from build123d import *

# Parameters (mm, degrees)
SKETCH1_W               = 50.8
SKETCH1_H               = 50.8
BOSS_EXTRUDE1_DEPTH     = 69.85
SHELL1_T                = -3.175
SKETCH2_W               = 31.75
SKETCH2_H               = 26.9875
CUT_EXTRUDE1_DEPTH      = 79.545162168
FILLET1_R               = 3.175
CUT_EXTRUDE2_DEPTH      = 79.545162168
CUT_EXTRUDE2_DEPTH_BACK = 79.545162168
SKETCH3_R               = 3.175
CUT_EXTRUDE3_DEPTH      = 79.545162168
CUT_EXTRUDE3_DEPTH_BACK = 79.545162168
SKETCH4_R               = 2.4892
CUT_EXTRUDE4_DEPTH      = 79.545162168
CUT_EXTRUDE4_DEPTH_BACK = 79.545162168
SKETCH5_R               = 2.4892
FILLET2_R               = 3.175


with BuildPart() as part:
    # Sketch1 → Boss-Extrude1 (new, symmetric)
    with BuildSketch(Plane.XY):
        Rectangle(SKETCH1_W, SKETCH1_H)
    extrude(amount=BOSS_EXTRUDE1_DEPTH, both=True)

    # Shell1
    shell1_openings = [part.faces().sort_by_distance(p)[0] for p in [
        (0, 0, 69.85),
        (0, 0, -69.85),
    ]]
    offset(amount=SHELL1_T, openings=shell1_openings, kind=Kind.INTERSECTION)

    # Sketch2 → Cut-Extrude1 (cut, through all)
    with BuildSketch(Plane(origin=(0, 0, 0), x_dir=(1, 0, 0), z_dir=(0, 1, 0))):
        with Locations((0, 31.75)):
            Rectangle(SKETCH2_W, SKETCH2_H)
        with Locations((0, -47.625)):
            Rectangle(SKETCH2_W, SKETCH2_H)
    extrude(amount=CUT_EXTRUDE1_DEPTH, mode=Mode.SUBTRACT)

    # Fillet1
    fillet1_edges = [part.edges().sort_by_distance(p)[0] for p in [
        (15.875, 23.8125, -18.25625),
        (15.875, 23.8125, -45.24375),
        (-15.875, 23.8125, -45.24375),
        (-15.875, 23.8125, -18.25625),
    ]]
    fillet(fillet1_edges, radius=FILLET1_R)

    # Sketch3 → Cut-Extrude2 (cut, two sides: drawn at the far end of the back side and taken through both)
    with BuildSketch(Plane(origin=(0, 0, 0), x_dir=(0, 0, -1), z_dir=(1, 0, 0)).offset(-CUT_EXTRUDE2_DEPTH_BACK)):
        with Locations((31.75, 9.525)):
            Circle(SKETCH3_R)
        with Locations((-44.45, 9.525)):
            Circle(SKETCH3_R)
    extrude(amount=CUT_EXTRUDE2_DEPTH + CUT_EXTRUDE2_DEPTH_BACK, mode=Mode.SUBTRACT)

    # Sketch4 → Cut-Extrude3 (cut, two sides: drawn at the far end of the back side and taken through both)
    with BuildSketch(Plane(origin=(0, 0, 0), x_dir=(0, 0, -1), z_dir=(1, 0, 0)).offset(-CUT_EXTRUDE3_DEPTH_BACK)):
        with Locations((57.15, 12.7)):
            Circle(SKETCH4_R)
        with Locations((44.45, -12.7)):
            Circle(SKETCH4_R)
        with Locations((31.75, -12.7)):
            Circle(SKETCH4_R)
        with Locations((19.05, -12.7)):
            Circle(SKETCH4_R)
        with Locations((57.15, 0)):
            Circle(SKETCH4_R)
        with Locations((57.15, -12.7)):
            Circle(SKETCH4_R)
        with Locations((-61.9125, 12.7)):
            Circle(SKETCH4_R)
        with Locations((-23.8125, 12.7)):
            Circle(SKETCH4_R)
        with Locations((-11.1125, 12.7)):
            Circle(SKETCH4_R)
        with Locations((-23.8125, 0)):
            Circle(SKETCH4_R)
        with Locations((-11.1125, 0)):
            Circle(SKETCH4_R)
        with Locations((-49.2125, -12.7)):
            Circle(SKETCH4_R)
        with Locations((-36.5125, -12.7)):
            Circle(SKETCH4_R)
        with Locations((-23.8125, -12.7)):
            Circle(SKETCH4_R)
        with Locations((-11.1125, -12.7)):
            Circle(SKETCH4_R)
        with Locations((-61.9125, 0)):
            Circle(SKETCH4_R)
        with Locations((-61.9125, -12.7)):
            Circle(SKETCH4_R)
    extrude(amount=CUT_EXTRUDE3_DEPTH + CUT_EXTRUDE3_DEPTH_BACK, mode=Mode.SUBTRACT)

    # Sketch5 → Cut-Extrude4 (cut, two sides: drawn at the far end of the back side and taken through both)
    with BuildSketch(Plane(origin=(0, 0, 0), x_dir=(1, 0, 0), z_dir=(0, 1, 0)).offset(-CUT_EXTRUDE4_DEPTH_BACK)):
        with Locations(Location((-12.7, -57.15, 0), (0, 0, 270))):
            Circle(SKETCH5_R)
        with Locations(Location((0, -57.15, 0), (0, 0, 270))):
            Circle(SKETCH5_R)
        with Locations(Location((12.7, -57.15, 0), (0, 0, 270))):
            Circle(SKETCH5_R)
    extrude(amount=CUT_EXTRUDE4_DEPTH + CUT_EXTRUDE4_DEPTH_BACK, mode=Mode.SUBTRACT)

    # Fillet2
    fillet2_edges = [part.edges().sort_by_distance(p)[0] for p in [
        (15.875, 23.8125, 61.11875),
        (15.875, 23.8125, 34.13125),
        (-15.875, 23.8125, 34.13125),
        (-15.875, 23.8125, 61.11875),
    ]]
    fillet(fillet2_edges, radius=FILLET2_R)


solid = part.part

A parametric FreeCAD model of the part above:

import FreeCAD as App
import Part
import Sketcher
from FreeCAD import Vector
Q = App.Units.Quantity


def edges_at(feature, points):
    """Names of the edges that pass closest to the given points."""
    edges = feature.Shape.Edges
    near = lambda p: min(range(len(edges)), key=lambda i: edges[i].distToShape(Part.Vertex(*p))[0])
    return sorted({f"Edge{near(p) + 1}" for p in points})


def faces_at(feature, points):
    """Names of the faces that lie closest to the given points."""
    faces = feature.Shape.Faces
    near = lambda p: min(range(len(faces)), key=lambda i: faces[i].distToShape(Part.Vertex(*p))[0])
    return sorted({f"Face{near(p) + 1}" for p in points})


def add_polygon(sketch, points):
    """Adds a closed chain of lines whose ends are joined by coincident constraints."""
    first, n = sketch.GeometryCount, len(points)
    for a, b in zip(points, points[1:] + points[:1]):
        sketch.addGeometry(Part.LineSegment(App.Vector(*a, 0), App.Vector(*b, 0)), False)
    for i in range(n):
        sketch.addConstraint(Sketcher.Constraint("Coincident", first + i, 2, first + (i + 1) % n, 1))

doc = App.newDocument("Part")
body = doc.addObject("PartDesign::Body", "Body")

sketch1 = doc.addObject("Sketcher::SketchObject", "Sketch")
body.addObject(sketch1)
sketch1.AttachmentSupport = (doc.XY_Plane, [""])
sketch1.MapMode = "FlatFace"
add_polygon(sketch1, [(-25, 25), (-25, -25), (25, -25), (25, 25)])
sketch1.addConstraint([
    Sketcher.Constraint("Vertical", 0),
    Sketcher.Constraint("Horizontal", 1),
    Sketcher.Constraint("Vertical", 2),
    Sketcher.Constraint("Horizontal", 3),
    Sketcher.Constraint("Symmetric", 0, 2, 2, 2, -1, 1),
    Sketcher.Constraint("Equal", 3, 0),
    Sketcher.Constraint("DistanceX", 1, 1, 1, 2, Q("2 in")),
])
pad1 = doc.addObject("PartDesign::Pad", "Pad")
body.addObject(pad1)
pad1.Profile = sketch1
pad1.Length = Q("5.5 in")
pad1.Midplane = True
doc.recompute()

thickness = doc.addObject("PartDesign::Thickness", "Thickness")
body.addObject(thickness)
thickness.Base = (pad1, faces_at(pad1, [(0, 0, 69.85), (0, 0, -69.85)]))
thickness.Value = Q("0.125 in")
thickness.Reversed = True
thickness.Join = "Intersection"

sketch2 = doc.addObject("Sketcher::SketchObject", "Sketch001")
body.addObject(sketch2)
sketch2.AttachmentSupport = (doc.XZ_Plane, [""])
sketch2.MapMode = "FlatFace"
add_polygon(sketch2, [(-16, -45), (-16, -18), (16, -18), (16, -45)])
add_polygon(sketch2, [(-16, 34), (-16, 61), (16, 61), (16, 34)])
sketch2.addConstraint([
    Sketcher.Constraint("Vertical", 0),
    Sketcher.Constraint("Horizontal", 1),
    Sketcher.Constraint("Vertical", 2),
    Sketcher.Constraint("Horizontal", 3),
    Sketcher.Constraint("Vertical", 4),
    Sketcher.Constraint("Horizontal", 5),
    Sketcher.Constraint("Vertical", 6),
    Sketcher.Constraint("Horizontal", 7),
    Sketcher.Constraint("Vertical", 3, 2, 4, 2),
    Sketcher.Constraint("Vertical", 2, 2, 5, 2),
    Sketcher.Constraint("Equal", 2, 4),
    Sketcher.Constraint("DistanceX", 1, 1, 1, 2, Q("1.25 in")),
    Sketcher.Constraint("DistanceY", 0, 1, 0, 2, Q("1.0625 in")),
    Sketcher.Constraint("DistanceX", 0, 2, -1, 1, Q("0.625 in")),
    Sketcher.Constraint("DistanceY", 0, 2, -1, 1, Q("0.71875 in")),
    Sketcher.Constraint("DistanceY", -1, 1, 4, 2, Q("2.40625 in")),
])
pocket1 = doc.addObject("PartDesign::Pocket", "Pocket")
body.addObject(pocket1)
pocket1.Profile = sketch2
pocket1.Type = "ThroughAll"
doc.recompute()

fillet = doc.addObject("PartDesign::Fillet", "Fillet")
body.addObject(fillet)
fillet.Base = (pocket1, edges_at(pocket1, [
    (15.875, 23.812, -18.256),
    (15.875, 23.812, -45.244),
    (-15.875, 23.812, -45.244),
    (-15.875, 23.812, -18.256),
]))
fillet.Radius = Q("0.125 in")

sketch3 = doc.addObject("Sketcher::SketchObject", "Sketch002")
body.addObject(sketch3)
sketch3.AttachmentSupport = (doc.YZ_Plane, [""])
sketch3.MapMode = "FlatFace"
sketch3.addGeometry([
    Part.Circle(Vector(9.5, -31.8, 0), Vector(0, 0, 1), 3.2),
    Part.Circle(Vector(9.5, 44.5, 0), Vector(0, 0, 1), 3.2),
], False)
sketch3.addConstraint([
    Sketcher.Constraint("Equal", 0, 1),
    Sketcher.Constraint("Vertical", 0, 3, 1, 3),
    Sketcher.Constraint("Diameter", 0, Q("0.25 in")),
    Sketcher.Constraint("DistanceY", 0, 3, 1, 3, Q("3 in")),
    Sketcher.Constraint("DistanceY", 0, 3, -1, 1, Q("1.25 in")),
    Sketcher.Constraint("DistanceX", -1, 1, 0, 3, Q("0.375 in")),
])
pocket2 = doc.addObject("PartDesign::Pocket", "Pocket001")
body.addObject(pocket2)
pocket2.Profile = sketch3
pocket2.Type = "ThroughAll"
pocket2.Midplane = True

sketch4 = doc.addObject("Sketcher::SketchObject", "Sketch003")
body.addObject(sketch4)
sketch4.AttachmentSupport = (doc.YZ_Plane, [""])
sketch4.MapMode = "FlatFace"
sketch4.addGeometry([
    Part.Circle(Vector(12.7, -57.1, 0), Vector(0, 0, 1), 2.5),
    Part.Circle(Vector(-12.7, -44.5, 0), Vector(0, 0, 1), 2.5),
    Part.Circle(Vector(-12.7, -31.8, 0), Vector(0, 0, 1), 2.5),
    Part.Circle(Vector(-12.7, -19.1, 0), Vector(0, 0, 1), 2.5),
    Part.Circle(Vector(0, -57.1, 0), Vector(0, 0, 1), 2.5),
    Part.Circle(Vector(-12.7, -57.1, 0), Vector(0, 0, 1), 2.5),
    Part.Circle(Vector(12.7, 61.9, 0), Vector(0, 0, 1), 2.5),
    Part.Circle(Vector(12.7, 23.8, 0), Vector(0, 0, 1), 2.5),
    Part.Circle(Vector(12.7, 11.1, 0), Vector(0, 0, 1), 2.5),
    Part.Circle(Vector(0, 23.8, 0), Vector(0, 0, 1), 2.5),
    Part.Circle(Vector(0, 11.1, 0), Vector(0, 0, 1), 2.5),
    Part.Circle(Vector(-12.7, 49.2, 0), Vector(0, 0, 1), 2.5),
    Part.Circle(Vector(-12.7, 36.5, 0), Vector(0, 0, 1), 2.5),
    Part.Circle(Vector(-12.7, 23.8, 0), Vector(0, 0, 1), 2.5),
    Part.Circle(Vector(-12.7, 11.1, 0), Vector(0, 0, 1), 2.5),
    Part.Circle(Vector(0, 61.9, 0), Vector(0, 0, 1), 2.5),
    Part.Circle(Vector(-12.7, 61.9, 0), Vector(0, 0, 1), 2.5),
], False)
sketch4.addConstraint([
    Sketcher.Constraint("Equal", 0, 1),
    Sketcher.Constraint("Equal", 1, 2),
    Sketcher.Constraint("Equal", 2, 3),
    Sketcher.Constraint("Equal", 3, 4),
    Sketcher.Constraint("Equal", 4, 5),
    Sketcher.Constraint("Equal", 5, 6),
    Sketcher.Constraint("Equal", 6, 7),
    Sketcher.Constraint("Equal", 7, 8),
    Sketcher.Constraint("Equal", 8, 9),
    Sketcher.Constraint("Equal", 9, 10),
    Sketcher.Constraint("Equal", 10, 11),
    Sketcher.Constraint("Equal", 11, 12),
    Sketcher.Constraint("Equal", 12, 13),
    Sketcher.Constraint("Equal", 13, 14),
    Sketcher.Constraint("Equal", 14, 15),
    Sketcher.Constraint("Equal", 15, 16),
    Sketcher.Constraint("Symmetric", 0, 3, 5, 3, -2),
    Sketcher.Constraint("Symmetric", 7, 3, 13, 3, -2),
    Sketcher.Constraint("Symmetric", 8, 3, 14, 3, -2),
    Sketcher.Constraint("Symmetric", 6, 3, 16, 3, -2),
    Sketcher.Constraint("PointOnObject", 4, 3, -2),
    Sketcher.Constraint("PointOnObject", 9, 3, -2),
    Sketcher.Constraint("PointOnObject", 10, 3, -2),
    Sketcher.Constraint("PointOnObject", 15, 3, -2),
    Sketcher.Constraint("Horizontal", 0, 3, 4, 3),
    Sketcher.Constraint("Horizontal", 7, 3, 9, 3),
    Sketcher.Constraint("Horizontal", 8, 3, 10, 3),
    Sketcher.Constraint("Horizontal", 6, 3, 15, 3),
    Sketcher.Constraint("Vertical", 1, 3, 2, 3),
    Sketcher.Constraint("Vertical", 2, 3, 3, 3),
    Sketcher.Constraint("Vertical", 3, 3, 5, 3),
    Sketcher.Constraint("Vertical", 0, 3, 6, 3),
    Sketcher.Constraint("Vertical", 6, 3, 7, 3),
    Sketcher.Constraint("Vertical", 7, 3, 8, 3),
    Sketcher.Constraint("Vertical", 5, 3, 11, 3),
    Sketcher.Constraint("Vertical", 11, 3, 12, 3),
    Sketcher.Constraint("Diameter", 0, Q("0.196 in")),
    Sketcher.Constraint("DistanceX", 1, 3, 0, 3, Q("1 in")),
    Sketcher.Constraint("DistanceY", 0, 3, 2, 3, Q("1 in")),
    Sketcher.Constraint("DistanceY", 1, 3, 3, 3, Q("1 in")),
    Sketcher.Constraint("DistanceY", 8, 3, 6, 3, Q("2 in")),
    Sketcher.Constraint("DistanceY", 9, 3, 11, 3, Q("1 in")),
    Sketcher.Constraint("DistanceY", 10, 3, 12, 3, Q("1 in")),
    Sketcher.Constraint("DistanceY", 0, 3, 1, 3, Q("0.5 in")),
    Sketcher.Constraint("DistanceY", 7, 3, 6, 3, Q("1.5 in")),
    Sketcher.Constraint("DistanceY", 0, 3, -1, 1, Q("2.25 in")),
    Sketcher.Constraint("DistanceY", -1, 1, 6, 3, Q("2.4375 in")),
])
pocket3 = doc.addObject("PartDesign::Pocket", "Pocket002")
body.addObject(pocket3)
pocket3.Profile = sketch4
pocket3.Type = "ThroughAll"
pocket3.Midplane = True

sketch5 = doc.addObject("Sketcher::SketchObject", "Sketch004")
body.addObject(sketch5)
sketch5.AttachmentSupport = (doc.XZ_Plane, [""])
sketch5.MapMode = "FlatFace"
sketch5.addGeometry([
    Part.Circle(Vector(-12.7, 57.1, 0), Vector(0, 0, 1), 2.5),
    Part.Circle(Vector(0, 57.1, 0), Vector(0, 0, 1), 2.5),
    Part.Circle(Vector(12.7, 57.1, 0), Vector(0, 0, 1), 2.5),
], False)
sketch5.addConstraint([
    Sketcher.Constraint("Equal", 0, 1),
    Sketcher.Constraint("Equal", 1, 2),
    Sketcher.Constraint("Symmetric", 0, 3, 2, 3, -2),
    Sketcher.Constraint("PointOnObject", 1, 3, -2),
    Sketcher.Constraint("Horizontal", 0, 3, 1, 3),
    Sketcher.Constraint("Diameter", 0, Q("0.196 in")),
    Sketcher.Constraint("DistanceX", 0, 3, 2, 3, Q("1 in")),
    Sketcher.Constraint("DistanceY", -1, 1, 0, 3, Q("2.25 in")),
])
pocket4 = doc.addObject("PartDesign::Pocket", "Pocket003")
body.addObject(pocket4)
pocket4.Profile = sketch5
pocket4.Type = "ThroughAll"
pocket4.Midplane = True
doc.recompute()

fillet2 = doc.addObject("PartDesign::Fillet", "Fillet001")
body.addObject(fillet2)
fillet2.Base = (pocket4, edges_at(pocket4, [
    (15.875, 23.812, 61.119),
    (15.875, 23.812, 34.131),
    (-15.875, 23.812, 34.131),
    (-15.875, 23.812, 61.119),
]))
fillet2.Radius = Q("0.125 in")

doc.recompute()
